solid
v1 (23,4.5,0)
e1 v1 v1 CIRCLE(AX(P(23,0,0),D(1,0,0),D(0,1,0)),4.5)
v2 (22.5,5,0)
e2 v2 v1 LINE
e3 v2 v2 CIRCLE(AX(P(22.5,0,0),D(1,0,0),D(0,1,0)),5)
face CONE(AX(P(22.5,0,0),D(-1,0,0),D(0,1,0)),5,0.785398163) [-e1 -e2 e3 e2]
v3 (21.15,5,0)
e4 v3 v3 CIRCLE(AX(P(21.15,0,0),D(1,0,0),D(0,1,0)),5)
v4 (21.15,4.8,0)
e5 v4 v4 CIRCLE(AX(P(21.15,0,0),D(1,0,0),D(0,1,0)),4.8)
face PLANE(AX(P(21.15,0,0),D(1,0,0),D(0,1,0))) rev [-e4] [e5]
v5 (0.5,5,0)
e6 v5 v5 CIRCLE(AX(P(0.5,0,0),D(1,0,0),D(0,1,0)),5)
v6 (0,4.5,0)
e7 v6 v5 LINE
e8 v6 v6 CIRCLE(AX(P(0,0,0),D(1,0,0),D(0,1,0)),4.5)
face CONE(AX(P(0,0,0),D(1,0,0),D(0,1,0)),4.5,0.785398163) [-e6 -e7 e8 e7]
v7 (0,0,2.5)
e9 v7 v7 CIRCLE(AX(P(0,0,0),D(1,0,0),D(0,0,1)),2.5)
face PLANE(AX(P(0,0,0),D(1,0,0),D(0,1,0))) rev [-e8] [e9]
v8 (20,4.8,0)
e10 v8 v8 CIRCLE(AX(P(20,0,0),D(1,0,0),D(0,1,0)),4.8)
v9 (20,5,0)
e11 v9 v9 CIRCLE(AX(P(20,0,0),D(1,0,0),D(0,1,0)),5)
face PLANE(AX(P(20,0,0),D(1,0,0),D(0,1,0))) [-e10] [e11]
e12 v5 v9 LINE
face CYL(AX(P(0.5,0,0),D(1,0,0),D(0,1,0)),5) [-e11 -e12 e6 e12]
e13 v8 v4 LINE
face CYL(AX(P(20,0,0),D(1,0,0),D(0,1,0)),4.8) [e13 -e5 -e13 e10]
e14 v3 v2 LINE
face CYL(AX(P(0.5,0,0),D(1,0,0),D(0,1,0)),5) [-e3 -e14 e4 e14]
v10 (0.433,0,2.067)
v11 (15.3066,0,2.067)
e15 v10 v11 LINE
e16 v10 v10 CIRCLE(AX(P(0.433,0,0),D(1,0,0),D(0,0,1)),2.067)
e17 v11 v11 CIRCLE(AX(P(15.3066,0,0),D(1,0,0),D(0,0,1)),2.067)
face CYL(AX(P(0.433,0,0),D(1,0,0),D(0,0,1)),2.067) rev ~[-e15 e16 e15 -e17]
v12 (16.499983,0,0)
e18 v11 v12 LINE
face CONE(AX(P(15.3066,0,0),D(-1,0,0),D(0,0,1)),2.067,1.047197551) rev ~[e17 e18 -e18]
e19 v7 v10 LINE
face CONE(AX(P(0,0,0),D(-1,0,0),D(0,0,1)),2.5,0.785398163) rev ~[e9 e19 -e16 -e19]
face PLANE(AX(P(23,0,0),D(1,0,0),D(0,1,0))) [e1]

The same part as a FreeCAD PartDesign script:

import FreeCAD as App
import Part
import Sketcher
from FreeCAD import Vector
Q = App.Units.Quantity

doc = App.newDocument("Part")
body = doc.addObject("PartDesign::Body", "Body")

# Sketch on XY plane
sketch1 = doc.addObject("Sketcher::SketchObject", "Sketch")
body.addObject(sketch1)
sketch1.AttachmentSupport = (doc.XY_Plane, [""])
sketch1.MapMode = "FlatFace"
sketch1.addGeometry([
    Part.LineSegment(Vector(0, 0, 0), Vector(23, 0, 0)),  # 0
    Part.LineSegment(Vector(23, 0, 0), Vector(23, 4.5, 0)),  # 1
    Part.LineSegment(Vector(23, 4.5, 0), Vector(22.5, 5, 0)),  # 2
    Part.LineSegment(Vector(22.5, 5, 0), Vector(0.5, 5, 0)),  # 3
    Part.LineSegment(Vector(0.5, 5, 0), Vector(0, 4.5, 0)),  # 4
    Part.LineSegment(Vector(0, 4.5, 0), Vector(0, 0, 0)),  # 5
], False)
sketch1.addConstraint([
    Sketcher.Constraint("Coincident", 0, 2, 1, 1),
    Sketcher.Constraint("Coincident", 1, 2, 2, 1),
    Sketcher.Constraint("Coincident", 2, 2, 3, 1),
    Sketcher.Constraint("Coincident", 3, 2, 4, 1),
    Sketcher.Constraint("Coincident", 4, 2, 5, 1),
    Sketcher.Constraint("Coincident", 5, 2, 0, 1),
    Sketcher.Constraint("Horizontal", 0),
    Sketcher.Constraint("Vertical", 1),
    Sketcher.Constraint("Horizontal", 3),
    Sketcher.Constraint("Vertical", 5),
    Sketcher.Constraint("Coincident", 5, 2, -1, 1),
    Sketcher.Constraint("Perpendicular", 2, 4),
    Sketcher.Constraint("Horizontal", 1, 2, 4, 2),
    Sketcher.Constraint("Equal", 2, 4),
    Sketcher.Constraint("DistanceX", 0, 1, 0, 2, Q("23 mm")),
    Sketcher.Constraint("DistanceX", 3, 2, 3, 1, Q("22 mm")),
    Sketcher.Constraint("DistanceY", 1, 1, 1, 2, Q("4.5 mm")),
])
revolution = doc.addObject("PartDesign::Revolution", "Revolution")
body.addObject(revolution)
revolution.Profile = sketch1
revolution.ReferenceAxis = (sketch1, ["H_Axis"])
revolution.Angle = 360

# Sketch on YZ plane
sketch2 = doc.addObject("Sketcher::SketchObject", "Sketch001")
body.addObject(sketch2)
sketch2.AttachmentSupport = (doc.YZ_Plane, [""])
sketch2.MapMode = "FlatFace"
sketch2.addGeometry(Part.Circle(Vector(0, 0, 0), Vector(0, 0, 1), 2.1), False)
sketch2.addConstraint([
    Sketcher.Constraint("Coincident", 0, 3, -1, 1),
    Sketcher.Constraint("Diameter", 0, Q("4.134 mm")),
])
doc.recompute()
hole = doc.addObject("PartDesign::Hole", "Hole")
body.addObject(hole)
hole.Profile = sketch2
hole.ThreadType = "None"
hole.Diameter = 4.134
hole.DepthType = "Dimension"
hole.Depth = 15.3066
hole.DrillPoint = "Angled"
hole.DrillPointAngle = 120
hole.HoleCutType = "Countersink"
hole.HoleCutDiameter = 5
hole.HoleCutCountersinkAngle = 90
hole.Reversed = True

# Sketch on XY plane
sketch3 = doc.addObject("Sketcher::SketchObject", "Sketch002")
body.addObject(sketch3)
sketch3.AttachmentSupport = (doc.XY_Plane, [""])
sketch3.MapMode = "FlatFace"
sketch3.addGeometry([
    Part.LineSegment(Vector(21.1, 14.8, 0), Vector(20, 14.8, 0)),
    Part.LineSegment(Vector(20, 14.8, 0), Vector(20, 4.8, 0)),
    Part.LineSegment(Vector(20, 4.8, 0), Vector(21.1, 4.8, 0)),
    Part.LineSegment(Vector(21.1, 4.8, 0), Vector(21.1, 14.8, 0)),
], False)
sketch3.addConstraint([
    Sketcher.Constraint("Coincident", 0, 2, 1, 1),
    Sketcher.Constraint("Coincident", 1, 2, 2, 1),
    Sketcher.Constraint("Coincident", 2, 2, 3, 1),
    Sketcher.Constraint("Coincident", 3, 2, 0, 1),
    Sketcher.Constraint("Horizontal", 0),
    Sketcher.Constraint("Vertical", 1),
    Sketcher.Constraint("Horizontal", 2),
    Sketcher.Constraint("Vertical", 3),
    Sketcher.Constraint("DistanceY", 1, 2, 1, 1, Q("10 mm")),
    Sketcher.Constraint("DistanceX", -1, 1, 0, 2, Q("20 mm")),
    Sketcher.Constraint("DistanceX", 0, 2, 0, 1, Q("1.15 mm")),
    Sketcher.Constraint("DistanceY", -1, 1, 0, 2, Q("14.8 mm")),
])
groove = doc.addObject("PartDesign::Groove", "Groove")
body.addObject(groove)
groove.Profile = sketch3
groove.ReferenceAxis = (sketch3, ["H_Axis"])
groove.Angle = 360

doc.recompute()
